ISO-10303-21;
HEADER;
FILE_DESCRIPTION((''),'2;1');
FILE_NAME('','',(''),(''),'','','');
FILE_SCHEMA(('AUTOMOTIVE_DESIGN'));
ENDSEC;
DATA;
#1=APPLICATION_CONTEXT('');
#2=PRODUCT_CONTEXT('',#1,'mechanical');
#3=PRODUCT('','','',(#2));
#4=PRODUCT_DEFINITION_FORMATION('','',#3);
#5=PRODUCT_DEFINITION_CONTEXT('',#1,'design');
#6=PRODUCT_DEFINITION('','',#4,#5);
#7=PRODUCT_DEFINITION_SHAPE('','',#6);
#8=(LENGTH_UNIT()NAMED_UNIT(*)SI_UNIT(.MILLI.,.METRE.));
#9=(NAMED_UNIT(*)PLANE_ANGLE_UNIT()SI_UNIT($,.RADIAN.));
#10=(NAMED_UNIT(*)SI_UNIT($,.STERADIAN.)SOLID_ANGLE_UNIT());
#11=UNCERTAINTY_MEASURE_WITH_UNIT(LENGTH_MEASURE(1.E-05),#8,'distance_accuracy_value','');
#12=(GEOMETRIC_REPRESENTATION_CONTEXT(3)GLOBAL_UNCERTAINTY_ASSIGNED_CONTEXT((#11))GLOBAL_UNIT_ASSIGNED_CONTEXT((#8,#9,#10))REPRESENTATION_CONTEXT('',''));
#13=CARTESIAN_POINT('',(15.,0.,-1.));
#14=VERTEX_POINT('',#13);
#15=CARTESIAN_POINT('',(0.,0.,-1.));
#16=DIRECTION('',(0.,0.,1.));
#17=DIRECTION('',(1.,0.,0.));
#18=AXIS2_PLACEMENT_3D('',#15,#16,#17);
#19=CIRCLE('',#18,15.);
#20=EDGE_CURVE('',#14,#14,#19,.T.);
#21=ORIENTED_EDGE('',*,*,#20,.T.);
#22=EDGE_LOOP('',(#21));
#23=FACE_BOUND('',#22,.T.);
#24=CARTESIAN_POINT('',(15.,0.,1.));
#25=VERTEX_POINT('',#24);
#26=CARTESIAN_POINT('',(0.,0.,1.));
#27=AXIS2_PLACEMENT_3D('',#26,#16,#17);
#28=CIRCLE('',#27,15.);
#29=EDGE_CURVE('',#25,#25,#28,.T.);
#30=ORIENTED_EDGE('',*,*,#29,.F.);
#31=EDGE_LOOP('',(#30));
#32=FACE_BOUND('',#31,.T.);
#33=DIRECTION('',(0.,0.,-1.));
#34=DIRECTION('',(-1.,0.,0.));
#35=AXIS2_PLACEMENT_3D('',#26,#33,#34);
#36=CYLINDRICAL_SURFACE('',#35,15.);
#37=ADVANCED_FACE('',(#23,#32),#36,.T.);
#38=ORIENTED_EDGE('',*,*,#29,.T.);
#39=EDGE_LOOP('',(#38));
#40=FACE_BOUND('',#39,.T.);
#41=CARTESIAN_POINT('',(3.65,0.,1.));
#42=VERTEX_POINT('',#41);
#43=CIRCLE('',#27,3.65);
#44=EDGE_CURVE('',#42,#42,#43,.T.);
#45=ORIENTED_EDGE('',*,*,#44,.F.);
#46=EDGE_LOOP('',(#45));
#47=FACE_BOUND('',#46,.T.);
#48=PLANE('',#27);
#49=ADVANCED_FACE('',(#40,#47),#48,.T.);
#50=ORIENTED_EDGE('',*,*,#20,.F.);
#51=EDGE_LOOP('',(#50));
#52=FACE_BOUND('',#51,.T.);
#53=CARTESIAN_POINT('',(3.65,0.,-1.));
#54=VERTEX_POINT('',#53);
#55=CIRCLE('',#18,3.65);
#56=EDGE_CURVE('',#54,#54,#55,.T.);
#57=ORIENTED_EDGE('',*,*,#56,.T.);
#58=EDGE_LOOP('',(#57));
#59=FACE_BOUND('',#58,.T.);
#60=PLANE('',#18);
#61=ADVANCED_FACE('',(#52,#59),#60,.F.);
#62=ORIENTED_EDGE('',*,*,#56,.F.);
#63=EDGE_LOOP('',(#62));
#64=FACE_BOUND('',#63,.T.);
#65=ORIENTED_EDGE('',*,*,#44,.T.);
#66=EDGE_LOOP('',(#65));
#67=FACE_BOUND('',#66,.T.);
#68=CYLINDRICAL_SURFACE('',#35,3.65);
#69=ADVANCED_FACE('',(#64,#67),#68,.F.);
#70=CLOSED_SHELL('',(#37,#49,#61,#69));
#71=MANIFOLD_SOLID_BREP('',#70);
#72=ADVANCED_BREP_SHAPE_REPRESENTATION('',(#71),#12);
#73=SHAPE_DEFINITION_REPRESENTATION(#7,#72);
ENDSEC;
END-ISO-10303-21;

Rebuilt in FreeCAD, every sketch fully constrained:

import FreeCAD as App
import Part
import Sketcher

doc = App.newDocument("Part")
body = doc.addObject("PartDesign::Body", "Body")

sketch1 = body.newObject("Sketcher::SketchObject", "Sketch")
sketch1.AttachmentSupport = (doc.getObject("XY_Plane"), [""])
sketch1.MapMode = "FlatFace"
sketch1.addGeometry([
    Part.Circle(App.Vector(0, 0, 0), App.Vector(0, 0, 1), 15),
    Part.Circle(App.Vector(0, 0, 0), App.Vector(0, 0, 1), 3.6),
], False)
sketch1.addConstraint([
    Sketcher.Constraint("Coincident", 0, 3, -1, 1),
    Sketcher.Constraint("Coincident", 1, 3, -1, 1),
    Sketcher.Constraint("Diameter", 0, 30.0),
    Sketcher.Constraint("Diameter", 1, 7.3),
])
pad1 = body.newObject("PartDesign::Pad", "Pad")
pad1.Profile = sketch1
pad1.Length = 2
pad1.Midplane = True

doc.recompute()
